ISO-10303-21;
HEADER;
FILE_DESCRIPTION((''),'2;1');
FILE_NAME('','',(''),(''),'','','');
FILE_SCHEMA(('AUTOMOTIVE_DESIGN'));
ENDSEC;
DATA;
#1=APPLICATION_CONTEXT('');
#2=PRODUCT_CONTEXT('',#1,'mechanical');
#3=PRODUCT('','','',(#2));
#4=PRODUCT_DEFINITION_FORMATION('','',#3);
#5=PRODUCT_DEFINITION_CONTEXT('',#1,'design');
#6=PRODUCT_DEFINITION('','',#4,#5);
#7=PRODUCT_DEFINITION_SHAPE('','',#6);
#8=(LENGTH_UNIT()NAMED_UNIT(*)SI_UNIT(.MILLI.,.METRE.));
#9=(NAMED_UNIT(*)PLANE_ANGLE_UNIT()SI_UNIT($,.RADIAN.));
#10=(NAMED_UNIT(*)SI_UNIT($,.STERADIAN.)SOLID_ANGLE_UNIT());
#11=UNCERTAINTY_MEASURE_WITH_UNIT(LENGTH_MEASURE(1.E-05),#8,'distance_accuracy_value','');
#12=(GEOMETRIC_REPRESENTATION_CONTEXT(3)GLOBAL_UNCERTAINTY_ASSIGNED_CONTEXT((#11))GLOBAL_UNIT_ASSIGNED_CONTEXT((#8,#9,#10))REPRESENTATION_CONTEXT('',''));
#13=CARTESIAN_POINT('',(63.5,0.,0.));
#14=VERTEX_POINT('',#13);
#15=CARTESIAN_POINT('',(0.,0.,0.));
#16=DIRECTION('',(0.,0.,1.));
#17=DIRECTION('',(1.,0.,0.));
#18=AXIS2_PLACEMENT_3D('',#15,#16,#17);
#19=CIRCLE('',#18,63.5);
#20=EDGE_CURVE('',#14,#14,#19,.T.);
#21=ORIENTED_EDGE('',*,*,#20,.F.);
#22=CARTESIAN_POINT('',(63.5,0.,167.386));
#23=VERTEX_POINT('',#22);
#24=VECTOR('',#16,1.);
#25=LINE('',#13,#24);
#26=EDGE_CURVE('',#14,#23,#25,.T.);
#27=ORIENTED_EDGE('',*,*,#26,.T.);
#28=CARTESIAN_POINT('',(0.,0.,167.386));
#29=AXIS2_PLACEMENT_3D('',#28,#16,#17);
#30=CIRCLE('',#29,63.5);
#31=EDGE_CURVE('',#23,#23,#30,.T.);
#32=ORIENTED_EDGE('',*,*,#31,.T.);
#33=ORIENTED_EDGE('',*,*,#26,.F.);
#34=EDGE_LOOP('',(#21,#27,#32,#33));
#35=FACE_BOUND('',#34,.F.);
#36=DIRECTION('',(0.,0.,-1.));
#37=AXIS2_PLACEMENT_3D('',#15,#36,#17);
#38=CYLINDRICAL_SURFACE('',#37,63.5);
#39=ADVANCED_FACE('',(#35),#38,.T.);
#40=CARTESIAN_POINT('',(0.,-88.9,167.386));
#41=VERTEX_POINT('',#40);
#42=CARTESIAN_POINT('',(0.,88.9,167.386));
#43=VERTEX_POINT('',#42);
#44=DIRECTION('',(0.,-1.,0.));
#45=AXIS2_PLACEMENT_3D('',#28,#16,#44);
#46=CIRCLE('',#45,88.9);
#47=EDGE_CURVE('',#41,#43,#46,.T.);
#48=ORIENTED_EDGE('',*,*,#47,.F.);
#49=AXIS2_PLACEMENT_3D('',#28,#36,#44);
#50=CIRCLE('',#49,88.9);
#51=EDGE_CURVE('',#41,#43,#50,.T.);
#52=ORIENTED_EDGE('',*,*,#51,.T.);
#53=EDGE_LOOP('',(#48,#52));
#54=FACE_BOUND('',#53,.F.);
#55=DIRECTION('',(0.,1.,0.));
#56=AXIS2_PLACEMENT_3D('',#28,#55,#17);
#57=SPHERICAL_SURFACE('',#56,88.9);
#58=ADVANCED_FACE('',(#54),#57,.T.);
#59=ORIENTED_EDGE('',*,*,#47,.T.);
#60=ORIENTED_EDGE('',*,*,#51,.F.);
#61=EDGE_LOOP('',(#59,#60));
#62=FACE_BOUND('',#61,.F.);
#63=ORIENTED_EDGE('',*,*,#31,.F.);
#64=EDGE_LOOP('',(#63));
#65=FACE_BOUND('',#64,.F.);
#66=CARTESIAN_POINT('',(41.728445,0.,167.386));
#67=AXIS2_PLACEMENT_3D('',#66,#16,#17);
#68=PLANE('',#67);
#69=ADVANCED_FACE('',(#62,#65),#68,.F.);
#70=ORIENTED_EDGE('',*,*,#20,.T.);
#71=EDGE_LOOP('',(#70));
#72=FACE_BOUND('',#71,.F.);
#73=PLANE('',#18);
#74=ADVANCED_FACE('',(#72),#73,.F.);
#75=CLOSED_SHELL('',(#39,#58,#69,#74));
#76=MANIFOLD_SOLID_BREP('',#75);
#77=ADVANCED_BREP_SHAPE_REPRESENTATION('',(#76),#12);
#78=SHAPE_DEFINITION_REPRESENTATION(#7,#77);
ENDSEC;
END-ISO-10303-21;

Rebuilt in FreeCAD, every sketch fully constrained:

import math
import FreeCAD as App
import Part
import Sketcher

V = App.Vector
Q = App.Units.Quantity

doc = App.newDocument("Part")
params = doc.addObject("Spreadsheet::Sheet", "Params")
for row, (alias, value) in enumerate([
    ("sketch1_diameter", "5 in"),
    ("pad1_length", "6.59 in"),
    ("sketch2_radius", "3.5 in"),
    ("revolution_angle", "180 deg"),
], start=1):
    params.set(f"A{row}", alias)
    params.set(f"B{row}", "=" + value)
    params.setAlias(f"B{row}", alias)

body = doc.addObject("PartDesign::Body", "Body")

sketch1 = body.newObject("Sketcher::SketchObject", "Sketch")
sketch1.AttachmentSupport = (doc.getObject("XY_Plane"), [""])
sketch1.MapMode = "FlatFace"
sketch1.addGeometry(Part.Circle(V(0, 0, 0), V(0, 0, 1), 63.5), False)
sketch1.addConstraint([
    Sketcher.Constraint("Coincident", 0, 3, -1, 1),
    Sketcher.Constraint("Diameter", 0, Q("5 in")),
])
sketch1.setExpression("Constraints[1]", "Params.sketch1_diameter")
pad1 = body.newObject("PartDesign::Pad", "Pad")
pad1.Profile = sketch1
pad1.setExpression("Length", "Params.pad1_length")

sketch2 = body.newObject("Sketcher::SketchObject", "Sketch001")
sketch2.AttachmentSupport = (doc.getObject("XY_Plane"), [""])
sketch2.MapMode = "FlatFace"
sketch2.AttachmentOffset = App.Placement(V(0, 0, 6.59 * 25.4), App.Rotation())
sketch2.addGeometry([
    Part.ArcOfCircle(Part.Circle(V(0, 0, 0), V(0, 0, 1), 88.9), math.radians(-90), math.radians(90)),
    Part.LineSegment(V(0, 88.9, 0), V(0, -88.9, 0)),
], False)
sketch2.addConstraint([
    Sketcher.Constraint("Coincident", 0, 1, 1, 2),
    Sketcher.Constraint("Coincident", 1, 1, 0, 2),
    Sketcher.Constraint("Vertical", 1),
    Sketcher.Constraint("Coincident", 0, 3, -1, 1),
    Sketcher.Constraint("PointOnObject", 0, 1, -2),
    Sketcher.Constraint("Radius", 0, Q("3.5 in")),
])
sketch2.setExpression("Constraints[5]", "Params.sketch2_radius")
revolution = body.newObject("PartDesign::Revolution", "Revolution")
revolution.Profile = sketch2
revolution.ReferenceAxis = (sketch2, ["V_Axis"])
revolution.setExpression("Angle", "Params.revolution_angle")
revolution.Reversed = True

doc.recompute()
